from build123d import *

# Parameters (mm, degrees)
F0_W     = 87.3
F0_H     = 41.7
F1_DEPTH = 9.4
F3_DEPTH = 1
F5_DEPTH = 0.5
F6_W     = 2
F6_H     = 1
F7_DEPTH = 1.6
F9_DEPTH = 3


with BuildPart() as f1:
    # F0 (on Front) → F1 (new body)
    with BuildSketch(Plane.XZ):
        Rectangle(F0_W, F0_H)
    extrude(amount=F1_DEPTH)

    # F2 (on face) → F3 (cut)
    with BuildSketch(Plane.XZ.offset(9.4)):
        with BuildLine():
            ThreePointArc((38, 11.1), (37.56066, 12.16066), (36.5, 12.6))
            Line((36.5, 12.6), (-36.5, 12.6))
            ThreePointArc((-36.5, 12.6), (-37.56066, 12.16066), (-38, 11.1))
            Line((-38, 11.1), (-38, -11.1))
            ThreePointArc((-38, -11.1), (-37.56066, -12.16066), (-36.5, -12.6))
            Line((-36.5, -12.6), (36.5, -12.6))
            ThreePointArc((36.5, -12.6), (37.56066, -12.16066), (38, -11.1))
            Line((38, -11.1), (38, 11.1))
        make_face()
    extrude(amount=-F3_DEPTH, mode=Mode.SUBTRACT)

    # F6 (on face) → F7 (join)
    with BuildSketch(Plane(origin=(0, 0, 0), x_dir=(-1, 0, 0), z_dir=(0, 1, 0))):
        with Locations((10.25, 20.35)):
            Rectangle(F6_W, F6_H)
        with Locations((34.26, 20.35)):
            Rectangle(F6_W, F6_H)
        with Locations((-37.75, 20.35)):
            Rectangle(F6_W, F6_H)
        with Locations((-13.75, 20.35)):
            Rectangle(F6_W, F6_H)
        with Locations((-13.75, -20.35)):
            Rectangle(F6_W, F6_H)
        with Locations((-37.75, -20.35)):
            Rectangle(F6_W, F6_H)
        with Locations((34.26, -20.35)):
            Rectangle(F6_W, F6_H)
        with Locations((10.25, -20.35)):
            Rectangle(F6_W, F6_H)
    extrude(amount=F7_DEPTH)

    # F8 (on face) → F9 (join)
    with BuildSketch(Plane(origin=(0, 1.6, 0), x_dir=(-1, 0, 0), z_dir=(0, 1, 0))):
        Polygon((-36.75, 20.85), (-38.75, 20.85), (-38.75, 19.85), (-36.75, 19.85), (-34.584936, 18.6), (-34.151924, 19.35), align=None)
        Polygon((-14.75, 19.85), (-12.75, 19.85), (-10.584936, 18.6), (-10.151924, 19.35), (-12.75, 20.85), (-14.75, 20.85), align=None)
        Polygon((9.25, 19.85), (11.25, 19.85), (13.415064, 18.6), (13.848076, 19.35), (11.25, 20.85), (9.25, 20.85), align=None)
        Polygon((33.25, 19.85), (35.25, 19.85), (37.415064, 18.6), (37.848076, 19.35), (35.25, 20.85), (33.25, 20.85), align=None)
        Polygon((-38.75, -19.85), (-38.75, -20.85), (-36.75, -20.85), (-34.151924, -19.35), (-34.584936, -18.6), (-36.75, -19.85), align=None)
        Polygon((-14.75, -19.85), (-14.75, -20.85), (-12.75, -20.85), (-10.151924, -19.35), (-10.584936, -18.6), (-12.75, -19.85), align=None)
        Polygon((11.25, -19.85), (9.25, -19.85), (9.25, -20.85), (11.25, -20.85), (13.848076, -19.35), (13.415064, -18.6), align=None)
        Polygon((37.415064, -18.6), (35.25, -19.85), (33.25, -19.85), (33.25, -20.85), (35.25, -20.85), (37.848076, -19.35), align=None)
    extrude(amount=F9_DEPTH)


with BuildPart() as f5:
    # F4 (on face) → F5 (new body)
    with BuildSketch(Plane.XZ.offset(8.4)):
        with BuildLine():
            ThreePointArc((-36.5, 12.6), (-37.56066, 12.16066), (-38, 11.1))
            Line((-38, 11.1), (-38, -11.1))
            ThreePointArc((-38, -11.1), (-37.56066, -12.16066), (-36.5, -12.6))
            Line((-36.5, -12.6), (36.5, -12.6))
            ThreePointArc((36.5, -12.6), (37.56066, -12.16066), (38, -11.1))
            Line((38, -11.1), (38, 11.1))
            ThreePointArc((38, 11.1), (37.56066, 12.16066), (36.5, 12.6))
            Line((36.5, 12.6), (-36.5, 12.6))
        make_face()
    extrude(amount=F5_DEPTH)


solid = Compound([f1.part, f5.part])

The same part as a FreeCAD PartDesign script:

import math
import FreeCAD as App
import Part
import Sketcher
from FreeCAD import Vector
Q = App.Units.Quantity

doc = App.newDocument("Part")
params = doc.addObject("Spreadsheet::Sheet", "Params")
for row, (alias, value) in enumerate([
    ("sketch1_width", "87.3 mm"),
    ("sketch1_height", "41.7 mm"),
    ("pad1_length", "9.4 mm"),
    ("sketch2_radius", "1.500001 mm"),
    ("sketch2_width", "73 mm"),
    ("sketch2_height", "22.2 mm"),
    ("pocket1_length", "1 mm"),
    ("sketch3_width", "2 mm"),
    ("sketch3_height", "1 mm"),
    ("pad2_length", "1.6 mm"),
    ("sketch4_width", "2 mm"),
    ("sketch4_height", "1 mm"),
    ("sketch4_length", "3 mm"),
    ("pad3_length", "3 mm"),
    ("sketch5_radius", "1.500001 mm"),
    ("sketch5_width", "73 mm"),
    ("sketch5_height", "22.2 mm"),
    ("pad4_length", "0.5 mm"),
], start=1):
    params.set(f"A{row}", alias)
    params.set(f"B{row}", "=" + value)
    params.setAlias(f"B{row}", alias)

body = doc.addObject("PartDesign::Body", "Body")

# Sketch on XZ plane
sketch1 = body.newObject("Sketcher::SketchObject", "Sketch")
sketch1.AttachmentSupport = (doc.getObject("XZ_Plane"), [""])
sketch1.MapMode = "FlatFace"
sketch1.addGeometry([
    Part.LineSegment(Vector(-43.65, 20.85, 0), Vector(-43.65, -20.85, 0)),
    Part.LineSegment(Vector(-43.65, -20.85, 0), Vector(43.65, -20.85, 0)),
    Part.LineSegment(Vector(43.65, -20.85, 0), Vector(43.65, 20.85, 0)),
    Part.LineSegment(Vector(43.65, 20.85, 0), Vector(-43.65, 20.85, 0)),
], False)
sketch1.addConstraint([
    Sketcher.Constraint("Coincident", 0, 2, 1, 1),
    Sketcher.Constraint("Coincident", 1, 2, 2, 1),
    Sketcher.Constraint("Coincident", 2, 2, 3, 1),
    Sketcher.Constraint("Coincident", 3, 2, 0, 1),
    Sketcher.Constraint("Vertical", 0),
    Sketcher.Constraint("Horizontal", 1),
    Sketcher.Constraint("Vertical", 2),
    Sketcher.Constraint("Horizontal", 3),
    Sketcher.Constraint("Symmetric", 0, 2, 2, 2, -1, 1),
    Sketcher.Constraint("DistanceX", 1, 1, 1, 2, Q("87.3 mm")),
    Sketcher.Constraint("DistanceY", 0, 2, 0, 1, Q("41.7 mm")),
])
sketch1.setExpression("Constraints[9]", "Params.sketch1_width")
sketch1.setExpression("Constraints[10]", "Params.sketch1_height")
pad1 = body.newObject("PartDesign::Pad", "Pad")
pad1.Profile = sketch1
pad1.setExpression("Length", "Params.pad1_length")

# Sketch on XZ plane
sketch2 = body.newObject("Sketcher::SketchObject", "Sketch001")
sketch2.AttachmentSupport = (doc.getObject("XZ_Plane"), [""])
sketch2.MapMode = "FlatFace"
sketch2.AttachmentOffset = App.Placement(Vector(0, 0, 9.4), App.Rotation())
sketch2.addGeometry([
    Part.ArcOfCircle(Part.Circle(Vector(36.499999, 11.099999, 0), Vector(0, 0, 1), 1.500001), math.radians(0.000022), math.radians(89.999978)),  # 0
    Part.LineSegment(Vector(36.5, 12.6, 0), Vector(-36.5, 12.6, 0)),  # 1
    Part.ArcOfCircle(Part.Circle(Vector(-36.499999, 11.099999, 0), Vector(0, 0, 1), 1.500001), math.radians(90.000022), math.radians(179.999978)),  # 2
    Part.LineSegment(Vector(-38, 11.1, 0), Vector(-38, -11.1, 0)),  # 3
    Part.ArcOfCircle(Part.Circle(Vector(-36.499999, -11.099999, 0), Vector(0, 0, 1), 1.500001), math.radians(-179.999978), math.radians(-90.000022)),  # 4
    Part.LineSegment(Vector(-36.5, -12.6, 0), Vector(36.5, -12.6, 0)),  # 5
    Part.ArcOfCircle(Part.Circle(Vector(36.499999, -11.099999, 0), Vector(0, 0, 1), 1.500001), math.radians(-89.999978), math.radians(-0.000022)),  # 6
    Part.LineSegment(Vector(38, -11.1, 0), Vector(38, 11.1, 0)),  # 7
], False)
sketch2.addConstraint([
    Sketcher.Constraint("Tangent", 0, 2, 1, 1),
    Sketcher.Constraint("Tangent", 1, 2, 2, 1),
    Sketcher.Constraint("Tangent", 2, 2, 3, 1),
    Sketcher.Constraint("Tangent", 3, 2, 4, 1),
    Sketcher.Constraint("Tangent", 4, 2, 5, 1),
    Sketcher.Constraint("Tangent", 5, 2, 6, 1),
    Sketcher.Constraint("Tangent", 6, 2, 7, 1),
    Sketcher.Constraint("Tangent", 7, 2, 0, 1),
    Sketcher.Constraint("Horizontal", 1),
    Sketcher.Constraint("Vertical", 3),
    Sketcher.Constraint("Horizontal", 5),
    Sketcher.Constraint("Vertical", 7),
    Sketcher.Constraint("Equal", 0, 2),
    Sketcher.Constraint("Equal", 2, 4),
    Sketcher.Constraint("Equal", 4, 6),
    Sketcher.Constraint("Symmetric", 0, 3, 4, 3, -1, 1),
    Sketcher.Constraint("Radius", 0, Q("1.500001 mm")),
    Sketcher.Constraint("DistanceX", 1, 2, 1, 1, Q("73 mm")),
    Sketcher.Constraint("DistanceY", 3, 2, 3, 1, Q("22.2 mm")),
])
sketch2.setExpression("Constraints[16]", "Params.sketch2_radius")
sketch2.setExpression("Constraints[17]", "Params.sketch2_width")
sketch2.setExpression("Constraints[18]", "Params.sketch2_height")
pocket1 = body.newObject("PartDesign::Pocket", "Pocket")
pocket1.Profile = sketch2
pocket1.setExpression("Length", "Params.pocket1_length")

# Sketch on XZ plane
sketch3 = body.newObject("Sketcher::SketchObject", "Sketch002")
sketch3.AttachmentSupport = (doc.getObject("XZ_Plane"), [""])
sketch3.MapMode = "FlatFace"
sketch3.addGeometry([
    Part.LineSegment(Vector(-9.25, 20.85, 0), Vector(-9.25, 19.85, 0)),  # 0
    Part.LineSegment(Vector(-9.25, 19.85, 0), Vector(-11.25, 19.85, 0)),  # 1
    Part.LineSegment(Vector(-11.25, 19.85, 0), Vector(-11.25, 20.85, 0)),  # 2
    Part.LineSegment(Vector(-11.25, 20.85, 0), Vector(-9.25, 20.85, 0)),  # 3
    Part.LineSegment(Vector(-33.26, 20.85, 0), Vector(-33.26, 19.85, 0)),  # 4
    Part.LineSegment(Vector(-33.26, 19.85, 0), Vector(-35.26, 19.85, 0)),  # 5
    Part.LineSegment(Vector(-35.26, 19.85, 0), Vector(-35.26, 20.85, 0)),  # 6
    Part.LineSegment(Vector(-35.26, 20.85, 0), Vector(-33.26, 20.85, 0)),  # 7
    Part.LineSegment(Vector(38.75, 20.85, 0), Vector(38.75, 19.85, 0)),  # 8
    Part.LineSegment(Vector(38.75, 19.85, 0), Vector(36.75, 19.85, 0)),  # 9
    Part.LineSegment(Vector(36.75, 19.85, 0), Vector(36.75, 20.85, 0)),  # 10
    Part.LineSegment(Vector(36.75, 20.85, 0), Vector(38.75, 20.85, 0)),  # 11
    Part.LineSegment(Vector(14.75, 20.85, 0), Vector(14.75, 19.85, 0)),  # 12
    Part.LineSegment(Vector(14.75, 19.85, 0), Vector(12.75, 19.85, 0)),  # 13
    Part.LineSegment(Vector(12.75, 19.85, 0), Vector(12.75, 20.85, 0)),  # 14
    Part.LineSegment(Vector(12.75, 20.85, 0), Vector(14.75, 20.85, 0)),  # 15
    Part.LineSegment(Vector(14.75, -19.85, 0), Vector(14.75, -20.85, 0)),  # 16
    Part.LineSegment(Vector(14.75, -20.85, 0), Vector(12.75, -20.85, 0)),  # 17
    Part.LineSegment(Vector(12.75, -20.85, 0), Vector(12.75, -19.85, 0)),  # 18
    Part.LineSegment(Vector(12.75, -19.85, 0), Vector(14.75, -19.85, 0)),  # 19
    Part.LineSegment(Vector(38.75, -19.85, 0), Vector(38.75, -20.85, 0)),  # 20
    Part.LineSegment(Vector(38.75, -20.85, 0), Vector(36.75, -20.85, 0)),  # 21
    Part.LineSegment(Vector(36.75, -20.85, 0), Vector(36.75, -19.85, 0)),  # 22
    Part.LineSegment(Vector(36.75, -19.85, 0), Vector(38.75, -19.85, 0)),  # 23
    Part.LineSegment(Vector(-33.26, -19.85, 0), Vector(-33.26, -20.85, 0)),  # 24
    Part.LineSegment(Vector(-33.26, -20.85, 0), Vector(-35.26, -20.85, 0)),  # 25
    Part.LineSegment(Vector(-35.26, -20.85, 0), Vector(-35.26, -19.85, 0)),  # 26
    Part.LineSegment(Vector(-35.26, -19.85, 0), Vector(-33.26, -19.85, 0)),  # 27
    Part.LineSegment(Vector(-9.25, -19.85, 0), Vector(-9.25, -20.85, 0)),  # 28
    Part.LineSegment(Vector(-9.25, -20.85, 0), Vector(-11.25, -20.85, 0)),  # 29
    Part.LineSegment(Vector(-11.25, -20.85, 0), Vector(-11.25, -19.85, 0)),  # 30
    Part.LineSegment(Vector(-11.25, -19.85, 0), Vector(-9.25, -19.85, 0)),  # 31
], False)
sketch3.addConstraint([
    Sketcher.Constraint("Coincident", 0, 2, 1, 1),
    Sketcher.Constraint("Coincident", 1, 2, 2, 1),
    Sketcher.Constraint("Coincident", 2, 2, 3, 1),
    Sketcher.Constraint("Coincident", 3, 2, 0, 1),
    Sketcher.Constraint("Coincident", 4, 2, 5, 1),
    Sketcher.Constraint("Coincident", 5, 2, 6, 1),
    Sketcher.Constraint("Coincident", 6, 2, 7, 1),
    Sketcher.Constraint("Coincident", 7, 2, 4, 1),
    Sketcher.Constraint("Coincident", 8, 2, 9, 1),
    Sketcher.Constraint("Coincident", 9, 2, 10, 1),
    Sketcher.Constraint("Coincident", 10, 2, 11, 1),
    Sketcher.Constraint("Coincident", 11, 2, 8, 1),
    Sketcher.Constraint("Coincident", 12, 2, 13, 1),
    Sketcher.Constraint("Coincident", 13, 2, 14, 1),
    Sketcher.Constraint("Coincident", 14, 2, 15, 1),
    Sketcher.Constraint("Coincident", 15, 2, 12, 1),
    Sketcher.Constraint("Coincident", 16, 2, 17, 1),
    Sketcher.Constraint("Coincident", 17, 2, 18, 1),
    Sketcher.Constraint("Coincident", 18, 2, 19, 1),
    Sketcher.Constraint("Coincident", 19, 2, 16, 1),
    Sketcher.Constraint("Coincident", 20, 2, 21, 1),
    Sketcher.Constraint("Coincident", 21, 2, 22, 1),
    Sketcher.Constraint("Coincident", 22, 2, 23, 1),
    Sketcher.Constraint("Coincident", 23, 2, 20, 1),
    Sketcher.Constraint("Coincident", 24, 2, 25, 1),
    Sketcher.Constraint("Coincident", 25, 2, 26, 1),
    Sketcher.Constraint("Coincident", 26, 2, 27, 1),
    Sketcher.Constraint("Coincident", 27, 2, 24, 1),
    Sketcher.Constraint("Coincident", 28, 2, 29, 1),
    Sketcher.Constraint("Coincident", 29, 2, 30, 1),
    Sketcher.Constraint("Coincident", 30, 2, 31, 1),
    Sketcher.Constraint("Coincident", 31, 2, 28, 1),
    Sketcher.Constraint("Vertical", 0),
    Sketcher.Constraint("Horizontal", 1),
    Sketcher.Constraint("Vertical", 2),
    Sketcher.Constraint("Horizontal", 3),
    Sketcher.Constraint("Vertical", 4),
    Sketcher.Constraint("Horizontal", 5),
    Sketcher.Constraint("Vertical", 6),
    Sketcher.Constraint("Horizontal", 7),
    Sketcher.Constraint("Vertical", 8),
    Sketcher.Constraint("Horizontal", 9),
    Sketcher.Constraint("Vertical", 10),
    Sketcher.Constraint("Horizontal", 11),
    Sketcher.Constraint("Vertical", 12),
    Sketcher.Constraint("Horizontal", 13),
    Sketcher.Constraint("Vertical", 14),
    Sketcher.Constraint("Horizontal", 15),
    Sketcher.Constraint("Vertical", 16),
    Sketcher.Constraint("Horizontal", 17),
    Sketcher.Constraint("Vertical", 18),
    Sketcher.Constraint("Horizontal", 19),
    Sketcher.Constraint("Vertical", 20),
    Sketcher.Constraint("Horizontal", 21),
    Sketcher.Constraint("Vertical", 22),
    Sketcher.Constraint("Horizontal", 23),
    Sketcher.Constraint("Vertical", 24),
    Sketcher.Constraint("Horizontal", 25),
    Sketcher.Constraint("Vertical", 26),
    Sketcher.Constraint("Horizontal", 27),
    Sketcher.Constraint("Vertical", 28),
    Sketcher.Constraint("Horizontal", 29),
    Sketcher.Constraint("Vertical", 30),
    Sketcher.Constraint("Horizontal", 31),
    Sketcher.Constraint("Symmetric", 15, 2, 16, 2, -1),
    Sketcher.Constraint("Symmetric", 13, 2, 18, 2, -1),
    Sketcher.Constraint("Symmetric", 11, 2, 20, 2, -1),
    Sketcher.Constraint("Symmetric", 9, 2, 22, 2, -1),
    Sketcher.Constraint("Symmetric", 7, 2, 24, 2, -1),
    Sketcher.Constraint("Symmetric", 5, 2, 26, 2, -1),
    Sketcher.Constraint("Symmetric", 3, 2, 28, 2, -1),
    Sketcher.Constraint("Symmetric", 1, 2, 30, 2, -1),
    Sketcher.Constraint("Horizontal", 1, 2, 4, 2),
    Sketcher.Constraint("Horizontal", 3, 2, 6, 2),
    Sketcher.Constraint("Horizontal", 5, 2, 8, 2),
    Sketcher.Constraint("Horizontal", 7, 2, 10, 2),
    Sketcher.Constraint("Horizontal", 9, 2, 12, 2),
    Sketcher.Constraint("Horizontal", 11, 2, 14, 2),
    Sketcher.Constraint("Equal", 3, 5),
    Sketcher.Constraint("Equal", 7, 9),
    Sketcher.Constraint("Equal", 11, 13),
    Sketcher.Constraint("DistanceX", 1, 2, 1, 1, Q("2 mm")),
    Sketcher.Constraint("DistanceY", 0, 2, 0, 1, Q("1 mm")),
    Sketcher.Constraint("DistanceX", 0, 2, 8, 2, Q("48 mm")),
    Sketcher.Constraint("DistanceX", 12, 2, 9, 2, Q("22 mm")),
    Sketcher.Constraint("DistanceY", 16, 2, 12, 2, Q("40.7 mm")),
    Sketcher.Constraint("DistanceX", 0, 2, -1, 1, Q("9.25 mm")),
    Sketcher.Constraint("DistanceX", 4, 2, -1, 1, Q("33.26 mm")),
])
sketch3.setExpression("Constraints[81]", "Params.sketch3_width")
sketch3.setExpression("Constraints[82]", "Params.sketch3_height")
pad2 = body.newObject("PartDesign::Pad", "Pad001")
pad2.Profile = sketch3
pad2.setExpression("Length", "Params.pad2_length")
pad2.Reversed = True

# Sketch on XZ plane
sketch4 = body.newObject("Sketcher::SketchObject", "Sketch003")
sketch4.AttachmentSupport = (doc.getObject("XZ_Plane"), [""])
sketch4.MapMode = "FlatFace"
sketch4.AttachmentOffset = App.Placement(Vector(0, 0, -1.6), App.Rotation())
sketch4.addGeometry([
    Part.LineSegment(Vector(36.75, 20.85, 0), Vector(38.75, 20.85, 0)),  # 0
    Part.LineSegment(Vector(38.75, 20.85, 0), Vector(38.75, 19.85, 0)),  # 1
    Part.LineSegment(Vector(38.75, 19.85, 0), Vector(36.75, 19.85, 0)),  # 2
    Part.LineSegment(Vector(36.75, 19.85, 0), Vector(34.584936, 18.6, 0)),  # 3
    Part.LineSegment(Vector(34.584936, 18.6, 0), Vector(34.151924, 19.35, 0)),  # 4
    Part.LineSegment(Vector(34.151924, 19.35, 0), Vector(36.75, 20.85, 0)),  # 5
    Part.LineSegment(Vector(14.75, 19.85, 0), Vector(12.75, 19.85, 0)),  # 6
    Part.LineSegment(Vector(12.75, 19.85, 0), Vector(10.584936, 18.6, 0)),  # 7
    Part.LineSegment(Vector(10.584936, 18.6, 0), Vector(10.151924, 19.35, 0)),  # 8
    Part.LineSegment(Vector(10.151924, 19.35, 0), Vector(12.75, 20.85, 0)),  # 9
    Part.LineSegment(Vector(12.75, 20.85, 0), Vector(14.75, 20.85, 0)),  # 10
    Part.LineSegment(Vector(14.75, 20.85, 0), Vector(14.75, 19.85, 0)),  # 11
    Part.LineSegment(Vector(-9.25, 19.85, 0), Vector(-11.25, 19.85, 0)),  # 12
    Part.LineSegment(Vector(-11.25, 19.85, 0), Vector(-13.415064, 18.6, 0)),  # 13
    Part.LineSegment(Vector(-13.415064, 18.6, 0), Vector(-13.848076, 19.35, 0)),  # 14
    Part.LineSegment(Vector(-13.848076, 19.35, 0), Vector(-11.25, 20.85, 0)),  # 15
    Part.LineSegment(Vector(-11.25, 20.85, 0), Vector(-9.25, 20.85, 0)),  # 16
    Part.LineSegment(Vector(-9.25, 20.85, 0), Vector(-9.25, 19.85, 0)),  # 17
    Part.LineSegment(Vector(-33.25, 19.85, 0), Vector(-35.25, 19.85, 0)),  # 18
    Part.LineSegment(Vector(-35.25, 19.85, 0), Vector(-37.415064, 18.6, 0)),  # 19
    Part.LineSegment(Vector(-37.415064, 18.6, 0), Vector(-37.848076, 19.35, 0)),  # 20
    Part.LineSegment(Vector(-37.848076, 19.35, 0), Vector(-35.25, 20.85, 0)),  # 21
    Part.LineSegment(Vector(-35.25, 20.85, 0), Vector(-33.25, 20.85, 0)),  # 22
    Part.LineSegment(Vector(-33.25, 20.85, 0), Vector(-33.25, 19.85, 0)),  # 23
    Part.LineSegment(Vector(38.75, -19.85, 0), Vector(38.75, -20.85, 0)),  # 24
    Part.LineSegment(Vector(38.75, -20.85, 0), Vector(36.75, -20.85, 0)),  # 25
    Part.LineSegment(Vector(36.75, -20.85, 0), Vector(34.151924, -19.35, 0)),  # 26
    Part.LineSegment(Vector(34.151924, -19.35, 0), Vector(34.584936, -18.6, 0)),  # 27
    Part.LineSegment(Vector(34.584936, -18.6, 0), Vector(36.75, -19.85, 0)),  # 28
    Part.LineSegment(Vector(36.75, -19.85, 0), Vector(38.75, -19.85, 0)),  # 29
    Part.LineSegment(Vector(14.75, -19.85, 0), Vector(14.75, -20.85, 0)),  # 30
    Part.LineSegment(Vector(14.75, -20.85, 0), Vector(12.75, -20.85, 0)),  # 31
    Part.LineSegment(Vector(12.75, -20.85, 0), Vector(10.151924, -19.35, 0)),  # 32
    Part.LineSegment(Vector(10.151924, -19.35, 0), Vector(10.584936, -18.6, 0)),  # 33
    Part.LineSegment(Vector(10.584936, -18.6, 0), Vector(12.75, -19.85, 0)),  # 34
    Part.LineSegment(Vector(12.75, -19.85, 0), Vector(14.75, -19.85, 0)),  # 35
    Part.LineSegment(Vector(-11.25, -19.85, 0), Vector(-9.25, -19.85, 0)),  # 36
    Part.LineSegment(Vector(-9.25, -19.85, 0), Vector(-9.25, -20.85, 0)),  # 37
    Part.LineSegment(Vector(-9.25, -20.85, 0), Vector(-11.25, -20.85, 0)),  # 38
    Part.LineSegment(Vector(-11.25, -20.85, 0), Vector(-13.848076, -19.35, 0)),  # 39
    Part.LineSegment(Vector(-13.848076, -19.35, 0), Vector(-13.415064, -18.6, 0)),  # 40
    Part.LineSegment(Vector(-13.415064, -18.6, 0), Vector(-11.25, -19.85, 0)),  # 41
    Part.LineSegment(Vector(-37.415064, -18.6, 0), Vector(-35.25, -19.85, 0)),  # 42
    Part.LineSegment(Vector(-35.25, -19.85, 0), Vector(-33.25, -19.85, 0)),  # 43
    Part.LineSegment(Vector(-33.25, -19.85, 0), Vector(-33.25, -20.85, 0)),  # 44
    Part.LineSegment(Vector(-33.25, -20.85, 0), Vector(-35.25, -20.85, 0)),  # 45
    Part.LineSegment(Vector(-35.25, -20.85, 0), Vector(-37.848076, -19.35, 0)),  # 46
    Part.LineSegment(Vector(-37.848076, -19.35, 0), Vector(-37.415064, -18.6, 0)),  # 47
], False)
sketch4.addConstraint([
    Sketcher.Constraint("Coincident", 0, 2, 1, 1),
    Sketcher.Constraint("Coincident", 1, 2, 2, 1),
    Sketcher.Constraint("Coincident", 2, 2, 3, 1),
    Sketcher.Constraint("Coincident", 3, 2, 4, 1),
    Sketcher.Constraint("Coincident", 4, 2, 5, 1),
    Sketcher.Constraint("Coincident", 5, 2, 0, 1),
    Sketcher.Constraint("Coincident", 6, 2, 7, 1),
    Sketcher.Constraint("Coincident", 7, 2, 8, 1),
    Sketcher.Constraint("Coincident", 8, 2, 9, 1),
    Sketcher.Constraint("Coincident", 9, 2, 10, 1),
    Sketcher.Constraint("Coincident", 10, 2, 11, 1),
    Sketcher.Constraint("Coincident", 11, 2, 6, 1),
    Sketcher.Constraint("Coincident", 12, 2, 13, 1),
    Sketcher.Constraint("Coincident", 13, 2, 14, 1),
    Sketcher.Constraint("Coincident", 14, 2, 15, 1),
    Sketcher.Constraint("Coincident", 15, 2, 16, 1),
    Sketcher.Constraint("Coincident", 16, 2, 17, 1),
    Sketcher.Constraint("Coincident", 17, 2, 12, 1),
    Sketcher.Constraint("Coincident", 18, 2, 19, 1),
    Sketcher.Constraint("Coincident", 19, 2, 20, 1),
    Sketcher.Constraint("Coincident", 20, 2, 21, 1),
    Sketcher.Constraint("Coincident", 21, 2, 22, 1),
    Sketcher.Constraint("Coincident", 22, 2, 23, 1),
    Sketcher.Constraint("Coincident", 23, 2, 18, 1),
    Sketcher.Constraint("Coincident", 24, 2, 25, 1),
    Sketcher.Constraint("Coincident", 25, 2, 26, 1),
    Sketcher.Constraint("Coincident", 26, 2, 27, 1),
    Sketcher.Constraint("Coincident", 27, 2, 28, 1),
    Sketcher.Constraint("Coincident", 28, 2, 29, 1),
    Sketcher.Constraint("Coincident", 29, 2, 24, 1),
    Sketcher.Constraint("Coincident", 30, 2, 31, 1),
    Sketcher.Constraint("Coincident", 31, 2, 32, 1),
    Sketcher.Constraint("Coincident", 32, 2, 33, 1),
    Sketcher.Constraint("Coincident", 33, 2, 34, 1),
    Sketcher.Constraint("Coincident", 34, 2, 35, 1),
    Sketcher.Constraint("Coincident", 35, 2, 30, 1),
    Sketcher.Constraint("Coincident", 36, 2, 37, 1),
    Sketcher.Constraint("Coincident", 37, 2, 38, 1),
    Sketcher.Constraint("Coincident", 38, 2, 39, 1),
    Sketcher.Constraint("Coincident", 39, 2, 40, 1),
    Sketcher.Constraint("Coincident", 40, 2, 41, 1),
    Sketcher.Constraint("Coincident", 41, 2, 36, 1),
    Sketcher.Constraint("Coincident", 42, 2, 43, 1),
    Sketcher.Constraint("Coincident", 43, 2, 44, 1),
    Sketcher.Constraint("Coincident", 44, 2, 45, 1),
    Sketcher.Constraint("Coincident", 45, 2, 46, 1),
    Sketcher.Constraint("Coincident", 46, 2, 47, 1),
    Sketcher.Constraint("Coincident", 47, 2, 42, 1),
    Sketcher.Constraint("Horizontal", 0),
    Sketcher.Constraint("Vertical", 1),
    Sketcher.Constraint("Horizontal", 2),
    Sketcher.Constraint("Horizontal", 6),
    Sketcher.Constraint("Horizontal", 10),
    Sketcher.Constraint("Vertical", 11),
    Sketcher.Constraint("Horizontal", 12),
    Sketcher.Constraint("Horizontal", 16),
    Sketcher.Constraint("Vertical", 17),
    Sketcher.Constraint("Horizontal", 18),
    Sketcher.Constraint("Horizontal", 22),
    Sketcher.Constraint("Vertical", 23),
    Sketcher.Constraint("Vertical", 24),
    Sketcher.Constraint("Horizontal", 25),
    Sketcher.Constraint("Horizontal", 29),
    Sketcher.Constraint("Vertical", 30),
    Sketcher.Constraint("Horizontal", 31),
    Sketcher.Constraint("Horizontal", 35),
    Sketcher.Constraint("Horizontal", 36),
    Sketcher.Constraint("Vertical", 37),
    Sketcher.Constraint("Horizontal", 38),
    Sketcher.Constraint("Horizontal", 43),
    Sketcher.Constraint("Vertical", 44),
    Sketcher.Constraint("Horizontal", 45),
    Sketcher.Constraint("Symmetric", 0, 2, 24, 2, -1),
    Sketcher.Constraint("Symmetric", 4, 2, 26, 2, -1),
    Sketcher.Constraint("Symmetric", 3, 2, 27, 2, -1),
    Sketcher.Constraint("Symmetric", 2, 2, 28, 2, -1),
    Sketcher.Constraint("Symmetric", 10, 2, 30, 2, -1),
    Sketcher.Constraint("Symmetric", 8, 2, 32, 2, -1),
    Sketcher.Constraint("Symmetric", 7, 2, 33, 2, -1),
    Sketcher.Constraint("Symmetric", 6, 2, 34, 2, -1),
    Sketcher.Constraint("Symmetric", 17, 2, 36, 2, -1),
    Sketcher.Constraint("Symmetric", 15, 2, 38, 2, -1),
    Sketcher.Constraint("Symmetric", 14, 2, 39, 2, -1),
    Sketcher.Constraint("Symmetric", 13, 2, 40, 2, -1),
    Sketcher.Constraint("Symmetric", 18, 2, 42, 2, -1),
    Sketcher.Constraint("Symmetric", 22, 2, 44, 2, -1),
    Sketcher.Constraint("Symmetric", 20, 2, 46, 2, -1),
    Sketcher.Constraint("Symmetric", 19, 2, 47, 2, -1),
    Sketcher.Constraint("Perpendicular", 3, 4),
    Sketcher.Constraint("Perpendicular", 4, 5),
    Sketcher.Constraint("Parallel", 5, 7),
    Sketcher.Constraint("Perpendicular", 7, 8),
    Sketcher.Constraint("Perpendicular", 8, 9),
    Sketcher.Constraint("Parallel", 9, 13),
    Sketcher.Constraint("Perpendicular", 13, 14),
    Sketcher.Constraint("Perpendicular", 14, 15),
    Sketcher.Constraint("Parallel", 15, 19),
    Sketcher.Constraint("Perpendicular", 19, 20),
    Sketcher.Constraint("Perpendicular", 20, 21),
    Sketcher.Constraint("Perpendicular", 26, 27),
    Sketcher.Constraint("Parallel", 28, 32),
    Sketcher.Constraint("Perpendicular", 40, 41),
    Sketcher.Constraint("Parallel", 42, 46),
    Sketcher.Constraint("Horizontal", 2, 2, 6, 2),
    Sketcher.Constraint("Horizontal", 3, 2, 7, 2),
    Sketcher.Constraint("Horizontal", 4, 2, 8, 2),
    Sketcher.Constraint("Horizontal", 5, 2, 9, 2),
    Sketcher.Constraint("Horizontal", 11, 2, 12, 2),
    Sketcher.Constraint("Horizontal", 7, 2, 13, 2),
    Sketcher.Constraint("Horizontal", 8, 2, 14, 2),
    Sketcher.Constraint("Horizontal", 10, 2, 15, 2),
    Sketcher.Constraint("Horizontal", 17, 2, 18, 2),
    Sketcher.Constraint("Horizontal", 13, 2, 19, 2),
    Sketcher.Constraint("Horizontal", 14, 2, 20, 2),
    Sketcher.Constraint("Horizontal", 16, 2, 21, 2),
    Sketcher.Constraint("Vertical", 2, 2, 5, 2),
    Sketcher.Constraint("Equal", 2, 6),
    Sketcher.Constraint("Equal", 10, 12),
    Sketcher.Constraint("Equal", 16, 18),
    Sketcher.Constraint("DistanceX", 0, 1, 0, 2, Q("2 mm")),
    Sketcher.Constraint("DistanceY", 1, 2, 1, 1, Q("1 mm")),
    Sketcher.Constraint("Angle", 3, Q("-150.000006 deg")),
    Sketcher.Constraint("Distance", 5, Q("3 mm")),
    Sketcher.Constraint("DistanceX", 6, 2, 2, 2, Q("24 mm")),
    Sketcher.Constraint("DistanceX", 12, 2, 6, 2, Q("24 mm")),
    Sketcher.Constraint("DistanceX", 18, 2, 12, 2, Q("24 mm")),
    Sketcher.Constraint("DistanceY", -1, 1, 3, 2, Q("18.6 mm")),
    Sketcher.Constraint("DistanceX", -1, 1, 0, 2, Q("38.75 mm")),
])
sketch4.setExpression("Constraints[119]", "Params.sketch4_width")
sketch4.setExpression("Constraints[120]", "Params.sketch4_height")
sketch4.setExpression("Constraints[122]", "Params.sketch4_length")
pad3 = body.newObject("PartDesign::Pad", "Pad002")
pad3.Profile = sketch4
pad3.setExpression("Length", "Params.pad3_length")
pad3.Reversed = True
body2 = doc.addObject("PartDesign::Body", "Body001")

# Sketch on XZ plane
sketch5 = body2.newObject("Sketcher::SketchObject", "Sketch004")
sketch5.AttachmentSupport = (doc.getObject("XZ_Plane001"), [""])
sketch5.MapMode = "FlatFace"
sketch5.AttachmentOffset = App.Placement(Vector(0, 0, 8.4), App.Rotation())
sketch5.addGeometry([
    Part.ArcOfCircle(Part.Circle(Vector(-36.499999, 11.099999, 0), Vector(0, 0, 1), 1.500001), math.radians(90.000022), math.radians(179.999978)),  # 0
    Part.LineSegment(Vector(-38, 11.1, 0), Vector(-38, -11.1, 0)),  # 1
    Part.ArcOfCircle(Part.Circle(Vector(-36.499999, -11.099999, 0), Vector(0, 0, 1), 1.500001), math.radians(-179.999978), math.radians(-90.000022)),  # 2
    Part.LineSegment(Vector(-36.5, -12.6, 0), Vector(36.5, -12.6, 0)),  # 3
    Part.ArcOfCircle(Part.Circle(Vector(36.499999, -11.099999, 0), Vector(0, 0, 1), 1.500001), math.radians(-89.999978), math.radians(-0.000022)),  # 4
    Part.LineSegment(Vector(38, -11.1, 0), Vector(38, 11.1, 0)),  # 5
    Part.ArcOfCircle(Part.Circle(Vector(36.499999, 11.099999, 0), Vector(0, 0, 1), 1.500001), math.radians(0.000022), math.radians(89.999978)),  # 6
    Part.LineSegment(Vector(36.5, 12.6, 0), Vector(-36.5, 12.6, 0)),  # 7
], False)
sketch5.addConstraint([
    Sketcher.Constraint("Tangent", 0, 2, 1, 1),
    Sketcher.Constraint("Tangent", 1, 2, 2, 1),
    Sketcher.Constraint("Tangent", 2, 2, 3, 1),
    Sketcher.Constraint("Tangent", 3, 2, 4, 1),
    Sketcher.Constraint("Tangent", 4, 2, 5, 1),
    Sketcher.Constraint("Tangent", 5, 2, 6, 1),
    Sketcher.Constraint("Tangent", 6, 2, 7, 1),
    Sketcher.Constraint("Tangent", 7, 2, 0, 1),
    Sketcher.Constraint("Vertical", 1),
    Sketcher.Constraint("Horizontal", 3),
    Sketcher.Constraint("Vertical", 5),
    Sketcher.Constraint("Horizontal", 7),
    Sketcher.Constraint("Equal", 0, 2),
    Sketcher.Constraint("Equal", 2, 4),
    Sketcher.Constraint("Equal", 4, 6),
    Sketcher.Constraint("Symmetric", 0, 3, 4, 3, -1, 1),
    Sketcher.Constraint("Radius", 0, Q("1.500001 mm")),
    Sketcher.Constraint("DistanceX", 3, 1, 3, 2, Q("73 mm")),
    Sketcher.Constraint("DistanceY", 1, 2, 1, 1, Q("22.2 mm")),
])
sketch5.setExpression("Constraints[16]", "Params.sketch5_radius")
sketch5.setExpression("Constraints[17]", "Params.sketch5_width")
sketch5.setExpression("Constraints[18]", "Params.sketch5_height")
pad4 = body2.newObject("PartDesign::Pad", "Pad003")
pad4.Profile = sketch5
pad4.setExpression("Length", "Params.pad4_length")

doc.recompute()
